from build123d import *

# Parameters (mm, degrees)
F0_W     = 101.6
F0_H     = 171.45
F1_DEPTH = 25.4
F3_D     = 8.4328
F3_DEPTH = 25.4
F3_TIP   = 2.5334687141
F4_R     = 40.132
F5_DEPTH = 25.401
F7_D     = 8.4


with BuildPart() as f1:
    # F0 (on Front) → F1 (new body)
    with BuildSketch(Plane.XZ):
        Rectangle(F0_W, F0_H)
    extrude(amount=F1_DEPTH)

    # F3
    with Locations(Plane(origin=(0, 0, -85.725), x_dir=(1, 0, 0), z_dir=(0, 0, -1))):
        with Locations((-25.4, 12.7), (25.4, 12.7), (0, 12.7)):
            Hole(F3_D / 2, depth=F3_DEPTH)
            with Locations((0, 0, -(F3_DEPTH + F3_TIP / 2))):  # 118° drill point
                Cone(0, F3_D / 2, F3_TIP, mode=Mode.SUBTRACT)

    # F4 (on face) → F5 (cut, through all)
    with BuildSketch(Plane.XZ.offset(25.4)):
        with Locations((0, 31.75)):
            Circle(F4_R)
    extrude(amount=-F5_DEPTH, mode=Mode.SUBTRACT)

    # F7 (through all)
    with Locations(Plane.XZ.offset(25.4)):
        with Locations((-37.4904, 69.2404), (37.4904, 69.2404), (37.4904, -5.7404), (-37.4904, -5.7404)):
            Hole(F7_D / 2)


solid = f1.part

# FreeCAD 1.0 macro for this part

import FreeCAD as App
import Part
import Sketcher
Q = App.Units.Quantity

doc = App.newDocument("Part")
body = doc.addObject("PartDesign::Body", "Body")

sketch1 = body.newObject("Sketcher::SketchObject", "Sketch")
sketch1.AttachmentSupport = (doc.getObject("XZ_Plane"), [""])
sketch1.MapMode = "FlatFace"
sketch1.addGeometry([
    Part.LineSegment(App.Vector(-51, 86, 0), App.Vector(-51, -86, 0)),
    Part.LineSegment(App.Vector(-51, -86, 0), App.Vector(51, -86, 0)),
    Part.LineSegment(App.Vector(51, -86, 0), App.Vector(51, 86, 0)),
    Part.LineSegment(App.Vector(51, 86, 0), App.Vector(-51, 86, 0)),
], False)
sketch1.addConstraint([
    Sketcher.Constraint("Coincident", 0, 2, 1, 1),
    Sketcher.Constraint("Coincident", 1, 2, 2, 1),
    Sketcher.Constraint("Coincident", 2, 2, 3, 1),
    Sketcher.Constraint("Coincident", 3, 2, 0, 1),
    Sketcher.Constraint("Vertical", 0),
    Sketcher.Constraint("Horizontal", 1),
    Sketcher.Constraint("Vertical", 2),
    Sketcher.Constraint("Horizontal", 3),
    Sketcher.Constraint("Symmetric", 0, 2, 2, 2, -1, 1),
    Sketcher.Constraint("DistanceX", 1, 1, 1, 2, Q("4 in")),
    Sketcher.Constraint("DistanceY", 0, 2, 0, 1, Q("6.75 in")),
])
pad1 = body.newObject("PartDesign::Pad", "Pad")
pad1.Profile = sketch1
pad1.Length = Q("1 in")

sketch2 = body.newObject("Sketcher::SketchObject", "Sketch001")
sketch2.AttachmentSupport = (doc.getObject("XY_Plane"), [""])
sketch2.MapMode = "FlatFace"
sketch2.AttachmentOffset = App.Placement(App.Vector(0, 0, -3.375 * 25.4), App.Rotation())
sketch2.addGeometry([
    Part.Circle(App.Vector(-25.4, -12.7, 0), App.Vector(0, 0, 1), 4.2),
    Part.Circle(App.Vector(25.4, -12.7, 0), App.Vector(0, 0, 1), 4.2),
    Part.Circle(App.Vector(0, -12.7, 0), App.Vector(0, 0, 1), 4.2),
], False)
sketch2.addConstraint([
    Sketcher.Constraint("Equal", 0, 1),
    Sketcher.Constraint("Equal", 1, 2),
    Sketcher.Constraint("Symmetric", 0, 3, 1, 3, -2),
    Sketcher.Constraint("PointOnObject", 2, 3, -2),
    Sketcher.Constraint("Horizontal", 1, 3, 2, 3),
    Sketcher.Constraint("Diameter", 0, Q("0.332 in")),
    Sketcher.Constraint("DistanceX", 0, 3, -1, 1, Q("1 in")),
    Sketcher.Constraint("DistanceY", 0, 3, -1, 1, Q("0.5 in")),
])
doc.recompute()
hole = body.newObject("PartDesign::Hole", "Hole")
hole.Profile = sketch2
hole.ThreadType = "None"
hole.Diameter = Q("0.332 in")
hole.DepthType = "Dimension"
hole.Depth = Q("1 in")
hole.DrillPoint = "Angled"
hole.DrillPointAngle = 118
hole.Reversed = True

sketch3 = body.newObject("Sketcher::SketchObject", "Sketch002")
sketch3.AttachmentSupport = (doc.getObject("XZ_Plane"), [""])
sketch3.MapMode = "FlatFace"
sketch3.AttachmentOffset = App.Placement(App.Vector(0, 0, 1 * 25.4), App.Rotation())
sketch3.addGeometry(Part.Circle(App.Vector(0, 32, 0), App.Vector(0, 0, 1), 40), False)
sketch3.addConstraint([
    Sketcher.Constraint("PointOnObject", 0, 3, -2),
    Sketcher.Constraint("Diameter", 0, Q("3.16 in")),
    Sketcher.Constraint("DistanceY", -1, 1, 0, 3, Q("1.25 in")),
])
pocket1 = body.newObject("PartDesign::Pocket", "Pocket")
pocket1.Profile = sketch3
pocket1.Type = "ThroughAll"

sketch4 = body.newObject("Sketcher::SketchObject", "Sketch003")
sketch4.AttachmentSupport = (doc.getObject("XZ_Plane"), [""])
sketch4.MapMode = "FlatFace"
sketch4.AttachmentOffset = App.Placement(App.Vector(0, 0, 1 * 25.4), App.Rotation())
sketch4.addGeometry([
    Part.Circle(App.Vector(-37.5, 69.2, 0), App.Vector(0, 0, 1), 4.2),
    Part.Circle(App.Vector(37.5, 69.2, 0), App.Vector(0, 0, 1), 4.2),
    Part.Circle(App.Vector(37.5, -5.7, 0), App.Vector(0, 0, 1), 4.2),
    Part.Circle(App.Vector(-37.5, -5.7, 0), App.Vector(0, 0, 1), 4.2),
], False)
sketch4.addConstraint([
    Sketcher.Constraint("Equal", 0, 1),
    Sketcher.Constraint("Equal", 1, 2),
    Sketcher.Constraint("Equal", 2, 3),
    Sketcher.Constraint("Symmetric", 0, 3, 1, 3, -2),
    Sketcher.Constraint("Symmetric", 2, 3, 3, 3, -2),
    Sketcher.Constraint("Vertical", 1, 3, 2, 3),
    Sketcher.Constraint("Diameter", 0, 8.4),
    Sketcher.Constraint("DistanceX", 0, 3, -1, 1, Q("1.476 in")),
    Sketcher.Constraint("DistanceY", -1, 1, 0, 3, Q("2.726 in")),
    Sketcher.Constraint("DistanceY", 2, 3, -1, 1, Q("0.226 in")),
])
doc.recompute()
hole2 = body.newObject("PartDesign::Hole", "Hole001")
hole2.Profile = sketch4
hole2.ThreadType = "None"
hole2.Diameter = 8.4
hole2.DepthType = "ThroughAll"

doc.recompute()
